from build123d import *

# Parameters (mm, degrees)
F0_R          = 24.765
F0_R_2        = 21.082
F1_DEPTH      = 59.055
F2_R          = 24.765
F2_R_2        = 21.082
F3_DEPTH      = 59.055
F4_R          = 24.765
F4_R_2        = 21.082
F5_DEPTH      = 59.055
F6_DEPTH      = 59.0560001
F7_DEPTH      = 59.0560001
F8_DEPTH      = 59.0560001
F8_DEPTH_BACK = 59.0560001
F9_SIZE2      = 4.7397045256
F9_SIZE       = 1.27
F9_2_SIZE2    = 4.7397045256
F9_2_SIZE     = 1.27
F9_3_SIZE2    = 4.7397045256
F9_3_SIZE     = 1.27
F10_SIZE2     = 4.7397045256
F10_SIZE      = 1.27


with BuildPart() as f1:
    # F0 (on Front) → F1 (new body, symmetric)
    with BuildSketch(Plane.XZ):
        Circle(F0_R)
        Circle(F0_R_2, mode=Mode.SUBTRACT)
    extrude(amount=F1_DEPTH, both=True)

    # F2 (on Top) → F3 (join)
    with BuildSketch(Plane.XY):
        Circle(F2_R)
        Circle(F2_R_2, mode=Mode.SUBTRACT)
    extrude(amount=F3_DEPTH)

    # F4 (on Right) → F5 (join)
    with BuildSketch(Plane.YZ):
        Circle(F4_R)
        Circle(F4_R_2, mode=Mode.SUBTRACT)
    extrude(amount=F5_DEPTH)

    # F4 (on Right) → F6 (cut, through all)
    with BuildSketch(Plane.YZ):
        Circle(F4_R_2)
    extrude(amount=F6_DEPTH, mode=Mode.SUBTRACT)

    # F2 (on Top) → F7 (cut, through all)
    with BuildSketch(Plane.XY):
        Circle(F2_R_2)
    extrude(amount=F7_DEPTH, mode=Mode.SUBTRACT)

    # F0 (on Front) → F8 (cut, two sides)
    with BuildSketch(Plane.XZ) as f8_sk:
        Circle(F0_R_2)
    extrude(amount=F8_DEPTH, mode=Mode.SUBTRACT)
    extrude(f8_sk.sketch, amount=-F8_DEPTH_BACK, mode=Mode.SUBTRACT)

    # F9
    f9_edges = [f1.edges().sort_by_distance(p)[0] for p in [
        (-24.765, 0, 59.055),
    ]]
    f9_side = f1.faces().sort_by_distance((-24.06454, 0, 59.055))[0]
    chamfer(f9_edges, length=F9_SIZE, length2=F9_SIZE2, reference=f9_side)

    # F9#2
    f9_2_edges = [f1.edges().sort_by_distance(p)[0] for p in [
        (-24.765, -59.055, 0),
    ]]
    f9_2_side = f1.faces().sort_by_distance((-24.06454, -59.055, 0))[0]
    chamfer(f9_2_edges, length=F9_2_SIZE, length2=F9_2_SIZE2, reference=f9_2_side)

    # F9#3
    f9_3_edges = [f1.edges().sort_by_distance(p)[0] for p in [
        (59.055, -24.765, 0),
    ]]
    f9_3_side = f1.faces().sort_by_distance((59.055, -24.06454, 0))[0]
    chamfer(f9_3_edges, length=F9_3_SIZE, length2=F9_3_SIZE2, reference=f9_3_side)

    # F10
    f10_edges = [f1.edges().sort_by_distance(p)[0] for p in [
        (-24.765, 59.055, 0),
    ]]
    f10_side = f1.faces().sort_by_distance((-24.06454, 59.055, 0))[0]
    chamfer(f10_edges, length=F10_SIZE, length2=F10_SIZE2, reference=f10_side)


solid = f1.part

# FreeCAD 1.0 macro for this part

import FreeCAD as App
import Part
import Sketcher
Q = App.Units.Quantity


def edges_at(feature, points):
    """Names of the edges that pass closest to the given points."""
    edges = feature.Shape.Edges
    near = lambda p: min(range(len(edges)), key=lambda i: edges[i].distToShape(Part.Vertex(*p))[0])
    return sorted({f"Edge{near(p) + 1}" for p in points})

doc = App.newDocument("Part")
params = doc.addObject("Spreadsheet::Sheet", "Params")
for row, (alias, value) in enumerate([
    ("sketch1_diameter", "1.95 in"),
    ("sketch1_diameter2", "1.66 in"),
    ("pad1_length", "4.65 in"),
    ("sketch2_diameter", "1.95 in"),
    ("sketch2_diameter2", "1.66 in"),
    ("pad2_length", "2.325 in"),
    ("sketch3_diameter", "1.95 in"),
    ("sketch3_diameter2", "1.66 in"),
    ("pad3_length", "2.325 in"),
    ("sketch4_diameter", "1.66 in"),
    ("sketch5_diameter", "1.66 in"),
    ("sketch6_diameter", "1.66 in"),
    ("chamfer_size", "0.05 in"),
    ("chamfer_size2", "4.739705 mm"),
    ("chamfer2_size", "0.05 in"),
    ("chamfer2_size2", "4.739705 mm"),
    ("chamfer3_size", "0.05 in"),
    ("chamfer3_size2", "4.739705 mm"),
    ("chamfer4_size", "0.05 in"),
    ("chamfer4_size2", "4.739705 mm"),
], start=1):
    params.set(f"A{row}", alias)
    params.set(f"B{row}", "=" + value)
    params.setAlias(f"B{row}", alias)

body = doc.addObject("PartDesign::Body", "Body")

sketch1 = doc.addObject("Sketcher::SketchObject", "Sketch")
body.addObject(sketch1)
sketch1.AttachmentSupport = (doc.XZ_Plane, [""])
sketch1.MapMode = "FlatFace"
sketch1.addGeometry([
    Part.Circle(App.Vector(0, 0, 0), App.Vector(0, 0, 1), 24.765),
    Part.Circle(App.Vector(0, 0, 0), App.Vector(0, 0, 1), 21.082),
], False)
sketch1.addConstraint([
    Sketcher.Constraint("Coincident", 0, 3, -1, 1),
    Sketcher.Constraint("Coincident", 1, 3, -1, 1),
    Sketcher.Constraint("Diameter", 0, Q("1.95 in")),
    Sketcher.Constraint("Diameter", 1, Q("1.66 in")),
])
sketch1.setExpression("Constraints[2]", "Params.sketch1_diameter")
sketch1.setExpression("Constraints[3]", "Params.sketch1_diameter2")
pad1 = doc.addObject("PartDesign::Pad", "Pad")
body.addObject(pad1)
pad1.Profile = sketch1
pad1.setExpression("Length", "Params.pad1_length")
pad1.Midplane = True

sketch2 = doc.addObject("Sketcher::SketchObject", "Sketch001")
body.addObject(sketch2)
sketch2.AttachmentSupport = (doc.XY_Plane, [""])
sketch2.MapMode = "FlatFace"
sketch2.addGeometry([
    Part.Circle(App.Vector(0, 0, 0), App.Vector(0, 0, 1), 24.765),
    Part.Circle(App.Vector(0, 0, 0), App.Vector(0, 0, 1), 21.082),
], False)
sketch2.addConstraint([
    Sketcher.Constraint("Coincident", 0, 3, -1, 1),
    Sketcher.Constraint("Coincident", 1, 3, -1, 1),
    Sketcher.Constraint("Diameter", 0, Q("1.95 in")),
    Sketcher.Constraint("Diameter", 1, Q("1.66 in")),
])
sketch2.setExpression("Constraints[2]", "Params.sketch2_diameter")
sketch2.setExpression("Constraints[3]", "Params.sketch2_diameter2")
pad2 = doc.addObject("PartDesign::Pad", "Pad001")
body.addObject(pad2)
pad2.Profile = sketch2
pad2.setExpression("Length", "Params.pad2_length")

sketch3 = doc.addObject("Sketcher::SketchObject", "Sketch002")
body.addObject(sketch3)
sketch3.AttachmentSupport = (doc.YZ_Plane, [""])
sketch3.MapMode = "FlatFace"
sketch3.addGeometry([
    Part.Circle(App.Vector(0, 0, 0), App.Vector(0, 0, 1), 24.765),
    Part.Circle(App.Vector(0, 0, 0), App.Vector(0, 0, 1), 21.082),
], False)
sketch3.addConstraint([
    Sketcher.Constraint("Coincident", 0, 3, -1, 1),
    Sketcher.Constraint("Coincident", 1, 3, -1, 1),
    Sketcher.Constraint("Diameter", 0, Q("1.95 in")),
    Sketcher.Constraint("Diameter", 1, Q("1.66 in")),
])
sketch3.setExpression("Constraints[2]", "Params.sketch3_diameter")
sketch3.setExpression("Constraints[3]", "Params.sketch3_diameter2")
pad3 = doc.addObject("PartDesign::Pad", "Pad002")
body.addObject(pad3)
pad3.Profile = sketch3
pad3.setExpression("Length", "Params.pad3_length")

sketch4 = doc.addObject("Sketcher::SketchObject", "Sketch003")
body.addObject(sketch4)
sketch4.AttachmentSupport = (doc.YZ_Plane, [""])
sketch4.MapMode = "FlatFace"
sketch4.addGeometry(Part.Circle(App.Vector(0, 0, 0), App.Vector(0, 0, 1), 21.082), False)
sketch4.addConstraint([
    Sketcher.Constraint("Coincident", 0, 3, -1, 1),
    Sketcher.Constraint("Diameter", 0, Q("1.66 in")),
])
sketch4.setExpression("Constraints[1]", "Params.sketch4_diameter")
pocket1 = doc.addObject("PartDesign::Pocket", "Pocket")
body.addObject(pocket1)
pocket1.Profile = sketch4
pocket1.Type = "ThroughAll"
pocket1.Reversed = True

sketch5 = doc.addObject("Sketcher::SketchObject", "Sketch004")
body.addObject(sketch5)
sketch5.AttachmentSupport = (doc.XY_Plane, [""])
sketch5.MapMode = "FlatFace"
sketch5.addGeometry(Part.Circle(App.Vector(0, 0, 0), App.Vector(0, 0, 1), 21.082), False)
sketch5.addConstraint([
    Sketcher.Constraint("Coincident", 0, 3, -1, 1),
    Sketcher.Constraint("Diameter", 0, Q("1.66 in")),
])
sketch5.setExpression("Constraints[1]", "Params.sketch5_diameter")
pocket2 = doc.addObject("PartDesign::Pocket", "Pocket001")
body.addObject(pocket2)
pocket2.Profile = sketch5
pocket2.Type = "ThroughAll"
pocket2.Reversed = True

sketch6 = doc.addObject("Sketcher::SketchObject", "Sketch005")
body.addObject(sketch6)
sketch6.AttachmentSupport = (doc.XZ_Plane, [""])
sketch6.MapMode = "FlatFace"
sketch6.addGeometry(Part.Circle(App.Vector(0, 0, 0), App.Vector(0, 0, 1), 21.082), False)
sketch6.addConstraint([
    Sketcher.Constraint("Coincident", 0, 3, -1, 1),
    Sketcher.Constraint("Diameter", 0, Q("1.66 in")),
])
sketch6.setExpression("Constraints[1]", "Params.sketch6_diameter")
pocket3 = doc.addObject("PartDesign::Pocket", "Pocket002")
body.addObject(pocket3)
pocket3.Profile = sketch6
pocket3.Type = "ThroughAll"
pocket3.Midplane = True
doc.recompute()

chamfer = doc.addObject("PartDesign::Chamfer", "Chamfer")
body.addObject(chamfer)
chamfer.Base = (pocket3, edges_at(pocket3, [(-24.765, 0, 59.055)]))
chamfer.ChamferType = "Two distances"
chamfer.setExpression("Size", "Params.chamfer_size")
chamfer.setExpression("Size2", "Params.chamfer_size2")
chamfer.FlipDirection = True
doc.recompute()

chamfer2 = doc.addObject("PartDesign::Chamfer", "Chamfer001")
body.addObject(chamfer2)
chamfer2.Base = (chamfer, edges_at(chamfer, [(-24.765, -59.055, 0)]))
chamfer2.ChamferType = "Two distances"
chamfer2.setExpression("Size", "Params.chamfer2_size")
chamfer2.setExpression("Size2", "Params.chamfer2_size2")
chamfer2.FlipDirection = True
doc.recompute()

chamfer3 = doc.addObject("PartDesign::Chamfer", "Chamfer002")
body.addObject(chamfer3)
chamfer3.Base = (chamfer2, edges_at(chamfer2, [(59.055, -24.765, 0)]))
chamfer3.ChamferType = "Two distances"
chamfer3.setExpression("Size", "Params.chamfer3_size")
chamfer3.setExpression("Size2", "Params.chamfer3_size2")
chamfer3.FlipDirection = True
doc.recompute()

chamfer4 = doc.addObject("PartDesign::Chamfer", "Chamfer003")
body.addObject(chamfer4)
chamfer4.Base = (chamfer3, edges_at(chamfer3, [(-24.765, 59.055, 0)]))
chamfer4.ChamferType = "Two distances"
chamfer4.setExpression("Size", "Params.chamfer4_size")
chamfer4.setExpression("Size2", "Params.chamfer4_size2")
chamfer4.FlipDirection = True

doc.recompute()
